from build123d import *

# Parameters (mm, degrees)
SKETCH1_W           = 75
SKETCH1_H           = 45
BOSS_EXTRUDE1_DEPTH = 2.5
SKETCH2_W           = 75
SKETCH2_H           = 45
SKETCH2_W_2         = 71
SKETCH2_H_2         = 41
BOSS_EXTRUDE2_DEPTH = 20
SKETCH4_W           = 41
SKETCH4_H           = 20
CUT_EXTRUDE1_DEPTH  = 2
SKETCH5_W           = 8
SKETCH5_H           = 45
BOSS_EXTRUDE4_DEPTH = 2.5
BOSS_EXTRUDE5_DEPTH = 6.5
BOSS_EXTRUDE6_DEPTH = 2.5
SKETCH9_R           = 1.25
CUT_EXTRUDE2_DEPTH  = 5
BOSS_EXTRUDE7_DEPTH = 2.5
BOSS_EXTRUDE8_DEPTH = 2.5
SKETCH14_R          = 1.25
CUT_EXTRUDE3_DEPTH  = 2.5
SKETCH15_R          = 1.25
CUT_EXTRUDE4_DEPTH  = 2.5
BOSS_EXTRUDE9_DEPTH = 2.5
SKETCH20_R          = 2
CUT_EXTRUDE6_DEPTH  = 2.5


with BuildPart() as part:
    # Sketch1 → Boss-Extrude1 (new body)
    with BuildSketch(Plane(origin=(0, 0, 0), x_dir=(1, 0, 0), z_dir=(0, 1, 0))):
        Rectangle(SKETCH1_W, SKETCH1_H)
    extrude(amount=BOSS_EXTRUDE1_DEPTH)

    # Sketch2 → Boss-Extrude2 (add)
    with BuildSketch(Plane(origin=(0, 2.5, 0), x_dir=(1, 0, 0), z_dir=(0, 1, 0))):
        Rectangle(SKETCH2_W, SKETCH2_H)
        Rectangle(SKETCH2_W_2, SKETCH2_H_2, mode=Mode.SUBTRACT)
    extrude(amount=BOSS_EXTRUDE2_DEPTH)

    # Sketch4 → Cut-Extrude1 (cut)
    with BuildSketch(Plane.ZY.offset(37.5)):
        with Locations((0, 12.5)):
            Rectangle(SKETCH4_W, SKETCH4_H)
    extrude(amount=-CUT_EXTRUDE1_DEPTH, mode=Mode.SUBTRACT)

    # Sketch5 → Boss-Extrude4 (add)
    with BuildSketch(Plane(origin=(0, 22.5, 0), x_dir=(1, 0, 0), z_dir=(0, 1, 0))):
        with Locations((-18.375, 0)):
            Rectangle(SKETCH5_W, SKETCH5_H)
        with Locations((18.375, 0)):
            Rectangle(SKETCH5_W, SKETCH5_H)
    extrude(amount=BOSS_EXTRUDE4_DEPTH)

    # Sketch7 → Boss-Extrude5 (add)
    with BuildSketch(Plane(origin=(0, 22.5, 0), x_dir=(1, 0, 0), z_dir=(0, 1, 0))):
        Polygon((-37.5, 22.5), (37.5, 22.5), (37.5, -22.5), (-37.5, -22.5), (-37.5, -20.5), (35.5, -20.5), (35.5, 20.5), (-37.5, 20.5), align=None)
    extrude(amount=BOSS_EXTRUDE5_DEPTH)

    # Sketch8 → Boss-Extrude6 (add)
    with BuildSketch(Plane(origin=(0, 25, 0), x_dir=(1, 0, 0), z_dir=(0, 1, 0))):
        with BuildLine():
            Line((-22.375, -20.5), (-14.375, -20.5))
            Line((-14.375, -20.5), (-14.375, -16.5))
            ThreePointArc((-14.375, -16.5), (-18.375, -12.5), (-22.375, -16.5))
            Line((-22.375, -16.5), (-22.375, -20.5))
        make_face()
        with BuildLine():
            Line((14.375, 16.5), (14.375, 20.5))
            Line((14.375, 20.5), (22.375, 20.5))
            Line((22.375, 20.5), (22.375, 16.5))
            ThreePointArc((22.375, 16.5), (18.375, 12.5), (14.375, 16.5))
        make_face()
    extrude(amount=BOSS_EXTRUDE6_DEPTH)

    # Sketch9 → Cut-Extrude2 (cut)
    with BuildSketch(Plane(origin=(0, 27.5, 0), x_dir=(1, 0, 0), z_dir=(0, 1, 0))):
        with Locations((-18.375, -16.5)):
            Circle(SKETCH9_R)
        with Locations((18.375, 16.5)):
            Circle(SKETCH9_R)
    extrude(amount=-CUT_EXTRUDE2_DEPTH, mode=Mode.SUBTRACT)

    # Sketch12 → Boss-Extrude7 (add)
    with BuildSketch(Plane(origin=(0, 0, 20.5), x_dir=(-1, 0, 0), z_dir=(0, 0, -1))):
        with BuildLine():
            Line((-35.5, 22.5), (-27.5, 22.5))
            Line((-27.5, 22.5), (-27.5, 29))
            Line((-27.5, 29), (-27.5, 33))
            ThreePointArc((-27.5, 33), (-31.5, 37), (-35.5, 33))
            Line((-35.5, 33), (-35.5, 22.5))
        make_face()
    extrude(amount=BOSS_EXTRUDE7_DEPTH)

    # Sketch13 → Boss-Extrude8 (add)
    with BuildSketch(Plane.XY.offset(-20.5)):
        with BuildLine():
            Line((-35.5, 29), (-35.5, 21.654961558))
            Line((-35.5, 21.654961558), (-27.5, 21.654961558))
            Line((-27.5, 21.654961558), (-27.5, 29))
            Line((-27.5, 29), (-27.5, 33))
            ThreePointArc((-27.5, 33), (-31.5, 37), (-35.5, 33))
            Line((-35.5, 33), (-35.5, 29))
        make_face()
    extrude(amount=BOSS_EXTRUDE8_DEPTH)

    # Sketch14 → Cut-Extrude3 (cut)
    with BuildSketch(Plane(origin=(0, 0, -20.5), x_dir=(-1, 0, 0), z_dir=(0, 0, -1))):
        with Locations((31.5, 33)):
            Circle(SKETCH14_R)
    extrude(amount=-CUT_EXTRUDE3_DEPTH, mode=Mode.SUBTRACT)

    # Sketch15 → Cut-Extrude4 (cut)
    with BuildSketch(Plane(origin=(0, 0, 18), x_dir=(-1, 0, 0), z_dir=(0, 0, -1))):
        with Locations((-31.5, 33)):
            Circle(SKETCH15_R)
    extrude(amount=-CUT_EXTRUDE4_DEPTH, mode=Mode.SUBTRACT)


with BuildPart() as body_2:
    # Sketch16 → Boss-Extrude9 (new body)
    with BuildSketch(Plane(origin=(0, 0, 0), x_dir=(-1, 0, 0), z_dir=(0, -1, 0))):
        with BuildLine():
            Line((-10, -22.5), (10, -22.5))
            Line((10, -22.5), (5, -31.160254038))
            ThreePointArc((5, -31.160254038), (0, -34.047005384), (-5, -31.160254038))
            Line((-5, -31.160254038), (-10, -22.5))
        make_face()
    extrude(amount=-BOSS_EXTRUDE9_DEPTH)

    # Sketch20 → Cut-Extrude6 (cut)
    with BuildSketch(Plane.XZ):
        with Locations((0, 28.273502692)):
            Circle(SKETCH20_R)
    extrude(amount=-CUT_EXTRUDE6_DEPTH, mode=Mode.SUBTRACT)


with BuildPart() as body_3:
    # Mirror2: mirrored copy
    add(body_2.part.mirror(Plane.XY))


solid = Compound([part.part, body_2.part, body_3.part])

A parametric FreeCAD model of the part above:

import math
import FreeCAD as App
import Part
import Sketcher

V = App.Vector
Q = App.Units.Quantity

doc = App.newDocument("Part")
body = doc.addObject("PartDesign::Body", "Body")

# Sketch on XZ plane
sketch1 = body.newObject("Sketcher::SketchObject", "Sketch")
sketch1.AttachmentSupport = (doc.getObject("XZ_Plane"), [""])
sketch1.MapMode = "FlatFace"
sketch1.addGeometry(Part.LineSegment(V(-38, -22, 0), V(-38, 22, 0)), False)
sketch1.addGeometry(Part.LineSegment(V(-38, 22, 0), V(38, 22, 0)), False)
sketch1.addGeometry(Part.LineSegment(V(38, 22, 0), V(38, -22, 0)), False)
sketch1.addGeometry(Part.LineSegment(V(38, -22, 0), V(-38, -22, 0)), False)
sketch1.addConstraint(Sketcher.Constraint("Coincident", 0, 2, 1, 1))
sketch1.addConstraint(Sketcher.Constraint("Coincident", 1, 2, 2, 1))
sketch1.addConstraint(Sketcher.Constraint("Coincident", 2, 2, 3, 1))
sketch1.addConstraint(Sketcher.Constraint("Coincident", 3, 2, 0, 1))
sketch1.addConstraint(Sketcher.Constraint("Vertical", 0))
sketch1.addConstraint(Sketcher.Constraint("Horizontal", 1))
sketch1.addConstraint(Sketcher.Constraint("Vertical", 2))
sketch1.addConstraint(Sketcher.Constraint("Horizontal", 3))
sketch1.addConstraint(Sketcher.Constraint("Symmetric", 0, 2, 2, 2, -1, 1))
sketch1.addConstraint(Sketcher.Constraint("DistanceX", 1, 1, 1, 2, 75.0))
sketch1.addConstraint(Sketcher.Constraint("DistanceY", 0, 1, 0, 2, 45.0))
pad1 = body.newObject("PartDesign::Pad", "Pad")
pad1.Profile = sketch1
pad1.Length = 2.5
pad1.Reversed = True

# Sketch on XZ plane
sketch2 = body.newObject("Sketcher::SketchObject", "Sketch001")
sketch2.AttachmentSupport = (doc.getObject("XZ_Plane"), [""])
sketch2.MapMode = "FlatFace"
sketch2.AttachmentOffset = App.Placement(V(0, 0, -2.5), App.Rotation())
sketch2.addGeometry(Part.LineSegment(V(-38, -22, 0), V(-38, 22, 0)), False)
sketch2.addGeometry(Part.LineSegment(V(-38, 22, 0), V(38, 22, 0)), False)
sketch2.addGeometry(Part.LineSegment(V(38, 22, 0), V(38, -22, 0)), False)
sketch2.addGeometry(Part.LineSegment(V(38, -22, 0), V(-38, -22, 0)), False)
sketch2.addGeometry(Part.LineSegment(V(36, 20, 0), V(-36, 20, 0)), False)
sketch2.addGeometry(Part.LineSegment(V(-36, 20, 0), V(-36, -20, 0)), False)
sketch2.addGeometry(Part.LineSegment(V(-36, -20, 0), V(36, -20, 0)), False)
sketch2.addGeometry(Part.LineSegment(V(36, -20, 0), V(36, 20, 0)), False)
sketch2.addConstraint(Sketcher.Constraint("Coincident", 0, 2, 1, 1))
sketch2.addConstraint(Sketcher.Constraint("Coincident", 1, 2, 2, 1))
sketch2.addConstraint(Sketcher.Constraint("Coincident", 2, 2, 3, 1))
sketch2.addConstraint(Sketcher.Constraint("Coincident", 3, 2, 0, 1))
sketch2.addConstraint(Sketcher.Constraint("Coincident", 4, 2, 5, 1))
sketch2.addConstraint(Sketcher.Constraint("Coincident", 5, 2, 6, 1))
sketch2.addConstraint(Sketcher.Constraint("Coincident", 6, 2, 7, 1))
sketch2.addConstraint(Sketcher.Constraint("Coincident", 7, 2, 4, 1))
sketch2.addConstraint(Sketcher.Constraint("Vertical", 0))
sketch2.addConstraint(Sketcher.Constraint("Horizontal", 1))
sketch2.addConstraint(Sketcher.Constraint("Vertical", 2))
sketch2.addConstraint(Sketcher.Constraint("Horizontal", 3))
sketch2.addConstraint(Sketcher.Constraint("Horizontal", 4))
sketch2.addConstraint(Sketcher.Constraint("Vertical", 5))
sketch2.addConstraint(Sketcher.Constraint("Horizontal", 6))
sketch2.addConstraint(Sketcher.Constraint("Vertical", 7))
sketch2.addConstraint(Sketcher.Constraint("Symmetric", 0, 2, 2, 2, -1, 1))
sketch2.addConstraint(Sketcher.Constraint("Symmetric", 4, 2, 6, 2, -1, 1))
sketch2.addConstraint(Sketcher.Constraint("DistanceX", 1, 1, 1, 2, 75.0))
sketch2.addConstraint(Sketcher.Constraint("DistanceX", 4, 2, 4, 1, 71.0))
sketch2.addConstraint(Sketcher.Constraint("DistanceY", 0, 1, 0, 2, 45.0))
sketch2.addConstraint(Sketcher.Constraint("DistanceY", 5, 2, 5, 1, 41.0))
pad2 = body.newObject("PartDesign::Pad", "Pad001")
pad2.Profile = sketch2
pad2.Length = 20
pad2.Reversed = True

# Sketch on YZ plane
sketch3 = body.newObject("Sketcher::SketchObject", "Sketch002")
sketch3.AttachmentSupport = (doc.getObject("YZ_Plane"), [""])
sketch3.MapMode = "FlatFace"
sketch3.AttachmentOffset = App.Placement(V(0, 0, -37.5), App.Rotation())
sketch3.addGeometry(Part.LineSegment(V(22, -20, 0), V(2, -20, 0)), False)
sketch3.addGeometry(Part.LineSegment(V(2, -20, 0), V(2, 20, 0)), False)
sketch3.addGeometry(Part.LineSegment(V(2, 20, 0), V(22, 20, 0)), False)
sketch3.addGeometry(Part.LineSegment(V(22, 20, 0), V(22, -20, 0)), False)
sketch3.addConstraint(Sketcher.Constraint("Coincident", 0, 2, 1, 1))
sketch3.addConstraint(Sketcher.Constraint("Coincident", 1, 2, 2, 1))
sketch3.addConstraint(Sketcher.Constraint("Coincident", 2, 2, 3, 1))
sketch3.addConstraint(Sketcher.Constraint("Coincident", 3, 2, 0, 1))
sketch3.addConstraint(Sketcher.Constraint("Horizontal", 0))
sketch3.addConstraint(Sketcher.Constraint("Vertical", 1))
sketch3.addConstraint(Sketcher.Constraint("Horizontal", 2))
sketch3.addConstraint(Sketcher.Constraint("Vertical", 3))
sketch3.addConstraint(Sketcher.Constraint("DistanceX", 0, 2, 0, 1, 20.0))
sketch3.addConstraint(Sketcher.Constraint("DistanceY", 1, 1, 1, 2, 41.0))
sketch3.addConstraint(Sketcher.Constraint("DistanceX", -1, 1, 0, 2, 2.5))
sketch3.addConstraint(Sketcher.Constraint("DistanceY", 0, 2, -1, 1, 20.5))
pocket1 = body.newObject("PartDesign::Pocket", "Pocket")
pocket1.Profile = sketch3
pocket1.Length = 2
pocket1.Reversed = True

# Sketch on XZ plane
sketch4 = body.newObject("Sketcher::SketchObject", "Sketch003")
sketch4.AttachmentSupport = (doc.getObject("XZ_Plane"), [""])
sketch4.MapMode = "FlatFace"
sketch4.AttachmentOffset = App.Placement(V(0, 0, -22.5), App.Rotation())
sketch4.addGeometry(Part.LineSegment(V(-22, -22, 0), V(-22, 22, 0)), False)
sketch4.addGeometry(Part.LineSegment(V(-22, 22, 0), V(-14, 22, 0)), False)
sketch4.addGeometry(Part.LineSegment(V(-14, 22, 0), V(-14, -22, 0)), False)
sketch4.addGeometry(Part.LineSegment(V(-14, -22, 0), V(-22, -22, 0)), False)
sketch4.addGeometry(Part.LineSegment(V(14, -22, 0), V(14, 22, 0)), False)
sketch4.addGeometry(Part.LineSegment(V(14, 22, 0), V(22, 22, 0)), False)
sketch4.addGeometry(Part.LineSegment(V(22, 22, 0), V(22, -22, 0)), False)
sketch4.addGeometry(Part.LineSegment(V(22, -22, 0), V(14, -22, 0)), False)
sketch4.addConstraint(Sketcher.Constraint("Coincident", 0, 2, 1, 1))
sketch4.addConstraint(Sketcher.Constraint("Coincident", 1, 2, 2, 1))
sketch4.addConstraint(Sketcher.Constraint("Coincident", 2, 2, 3, 1))
sketch4.addConstraint(Sketcher.Constraint("Coincident", 3, 2, 0, 1))
sketch4.addConstraint(Sketcher.Constraint("Coincident", 4, 2, 5, 1))
sketch4.addConstraint(Sketcher.Constraint("Coincident", 5, 2, 6, 1))
sketch4.addConstraint(Sketcher.Constraint("Coincident", 6, 2, 7, 1))
sketch4.addConstraint(Sketcher.Constraint("Coincident", 7, 2, 4, 1))
sketch4.addConstraint(Sketcher.Constraint("Vertical", 0))
sketch4.addConstraint(Sketcher.Constraint("Horizontal", 1))
sketch4.addConstraint(Sketcher.Constraint("Vertical", 2))
sketch4.addConstraint(Sketcher.Constraint("Horizontal", 3))
sketch4.addConstraint(Sketcher.Constraint("Vertical", 4))
sketch4.addConstraint(Sketcher.Constraint("Horizontal", 5))
sketch4.addConstraint(Sketcher.Constraint("Vertical", 6))
sketch4.addConstraint(Sketcher.Constraint("Horizontal", 7))
sketch4.addConstraint(Sketcher.Constraint("Symmetric", 2, 2, 4, 2, -1, 1))
sketch4.addConstraint(Sketcher.Constraint("Symmetric", 0, 2, 6, 2, -1, 1))
sketch4.addConstraint(Sketcher.Constraint("Horizontal", 1, 2, 4, 2))
sketch4.addConstraint(Sketcher.Constraint("DistanceX", 1, 1, 1, 2, 8.0))
sketch4.addConstraint(Sketcher.Constraint("DistanceY", 0, 1, 0, 2, 45.0))
sketch4.addConstraint(Sketcher.Constraint("DistanceX", 1, 2, 4, 2, 28.75))
pad3 = body.newObject("PartDesign::Pad", "Pad002")
pad3.Profile = sketch4
pad3.Length = 2.5
pad3.Reversed = True

# Sketch on XZ plane
sketch5 = body.newObject("Sketcher::SketchObject", "Sketch004")
sketch5.AttachmentSupport = (doc.getObject("XZ_Plane"), [""])
sketch5.MapMode = "FlatFace"
sketch5.AttachmentOffset = App.Placement(V(0, 0, -22.5), App.Rotation())
sketch5.addGeometry(Part.LineSegment(V(37.5, -22.5, 0), V(-37.5, -22.5, 0)), False)
sketch5.addGeometry(Part.LineSegment(V(-37.5, -22.5, 0), V(-37.5, -20.5, 0)), False)
sketch5.addGeometry(Part.LineSegment(V(-37.5, -20.5, 0), V(35.5, -20.5, 0)), False)
sketch5.addGeometry(Part.LineSegment(V(35.5, -20.5, 0), V(35.5, 20.5, 0)), False)
sketch5.addGeometry(Part.LineSegment(V(35.5, 20.5, 0), V(-37.5, 20.5, 0)), False)
sketch5.addGeometry(Part.LineSegment(V(-37.5, 20.5, 0), V(-37.5, 22.5, 0)), False)
sketch5.addGeometry(Part.LineSegment(V(-37.5, 22.5, 0), V(37.5, 22.5, 0)), False)
sketch5.addGeometry(Part.LineSegment(V(37.5, 22.5, 0), V(37.5, -22.5, 0)), False)
sketch5.addConstraint(Sketcher.Constraint("Coincident", 0, 2, 1, 1))
sketch5.addConstraint(Sketcher.Constraint("Coincident", 1, 2, 2, 1))
sketch5.addConstraint(Sketcher.Constraint("Coincident", 2, 2, 3, 1))
sketch5.addConstraint(Sketcher.Constraint("Coincident", 3, 2, 4, 1))
sketch5.addConstraint(Sketcher.Constraint("Coincident", 4, 2, 5, 1))
sketch5.addConstraint(Sketcher.Constraint("Coincident", 5, 2, 6, 1))
sketch5.addConstraint(Sketcher.Constraint("Coincident", 6, 2, 7, 1))
sketch5.addConstraint(Sketcher.Constraint("Coincident", 7, 2, 0, 1))
sketch5.addConstraint(Sketcher.Constraint("Horizontal", 0))
sketch5.addConstraint(Sketcher.Constraint("Vertical", 1))
sketch5.addConstraint(Sketcher.Constraint("Horizontal", 2))
sketch5.addConstraint(Sketcher.Constraint("Vertical", 3))
sketch5.addConstraint(Sketcher.Constraint("Horizontal", 4))
sketch5.addConstraint(Sketcher.Constraint("Vertical", 5))
sketch5.addConstraint(Sketcher.Constraint("Horizontal", 6))
sketch5.addConstraint(Sketcher.Constraint("Vertical", 7))
sketch5.addConstraint(Sketcher.Constraint("Symmetric", 0, 2, 6, 2, -1, 1))
sketch5.addConstraint(Sketcher.Constraint("Symmetric", 1, 2, 4, 2, -1))
sketch5.addConstraint(Sketcher.Constraint("DistanceX", 0, 2, 0, 1, 75.0))
sketch5.addConstraint(Sketcher.Constraint("DistanceX", 2, 1, 2, 2, 73.0))
sketch5.addConstraint(Sketcher.Constraint("DistanceY", 1, 1, 1, 2, 2.0))
sketch5.addConstraint(Sketcher.Constraint("DistanceY", 3, 1, 3, 2, 41.0))
pad4 = body.newObject("PartDesign::Pad", "Pad003")
pad4.Profile = sketch5
pad4.Length = 6.5
pad4.Reversed = True

# Sketch on XZ plane
sketch6 = body.newObject("Sketcher::SketchObject", "Sketch005")
sketch6.AttachmentSupport = (doc.getObject("XZ_Plane"), [""])
sketch6.MapMode = "FlatFace"
sketch6.AttachmentOffset = App.Placement(V(0, 0, -25), App.Rotation())
sketch6.addGeometry(Part.LineSegment(V(-22.4, 20.5, 0), V(-14.4, 20.5, 0)), False)
sketch6.addGeometry(Part.LineSegment(V(-14.4, 20.5, 0), V(-14.4, 16.5, 0)), False)
sketch6.addGeometry(Part.ArcOfCircle(Part.Circle(V(-18.4, 16.5, 0), V(0, 0, 1), 4), math.radians(180), math.radians(360)), False)
sketch6.addGeometry(Part.LineSegment(V(-22.4, 16.5, 0), V(-22.4, 20.5, 0)), False)
sketch6.addGeometry(Part.LineSegment(V(14.4, -20.5, 0), V(14.4, -16.5, 0)), False)
sketch6.addGeometry(Part.ArcOfCircle(Part.Circle(V(18.4, -16.5, 0), V(0, 0, 1), 4), math.radians(0), math.radians(180)), False)
sketch6.addGeometry(Part.LineSegment(V(22.4, -16.5, 0), V(22.4, -20.5, 0)), False)
sketch6.addGeometry(Part.LineSegment(V(22.4, -20.5, 0), V(14.4, -20.5, 0)), False)
sketch6.addConstraint(Sketcher.Constraint("Coincident", 0, 2, 1, 1))
sketch6.addConstraint(Sketcher.Constraint("Tangent", 1, 2, 2, 2))
sketch6.addConstraint(Sketcher.Constraint("Tangent", 2, 1, 3, 1))
sketch6.addConstraint(Sketcher.Constraint("Coincident", 3, 2, 0, 1))
sketch6.addConstraint(Sketcher.Constraint("Tangent", 4, 2, 5, 2))
sketch6.addConstraint(Sketcher.Constraint("Tangent", 5, 1, 6, 1))
sketch6.addConstraint(Sketcher.Constraint("Coincident", 6, 2, 7, 1))
sketch6.addConstraint(Sketcher.Constraint("Coincident", 7, 2, 4, 1))
sketch6.addConstraint(Sketcher.Constraint("Horizontal", 0))
sketch6.addConstraint(Sketcher.Constraint("Vertical", 1))
sketch6.addConstraint(Sketcher.Constraint("Vertical", 3))
sketch6.addConstraint(Sketcher.Constraint("Vertical", 4))
sketch6.addConstraint(Sketcher.Constraint("Vertical", 6))
sketch6.addConstraint(Sketcher.Constraint("Horizontal", 7))
sketch6.addConstraint(Sketcher.Constraint("Equal", 2, 5))
sketch6.addConstraint(Sketcher.Constraint("Symmetric", 2, 3, 5, 3, -1, 1))
sketch6.addConstraint(Sketcher.Constraint("Equal", 3, 4))
sketch6.addConstraint(Sketcher.Constraint("Radius", 2, 4.0))
sketch6.addConstraint(Sketcher.Constraint("DistanceY", 1, 2, 1, 1, 4.0))
sketch6.addConstraint(Sketcher.Constraint("DistanceY", 5, 3, 2, 3, 33.0))
sketch6.addConstraint(Sketcher.Constraint("DistanceX", 2, 3, 5, 3, 36.75))
pad5 = body.newObject("PartDesign::Pad", "Pad004")
pad5.Profile = sketch6
pad5.Length = 2.5
pad5.Reversed = True

# Sketch on XZ plane
sketch7 = body.newObject("Sketcher::SketchObject", "Sketch006")
sketch7.AttachmentSupport = (doc.getObject("XZ_Plane"), [""])
sketch7.MapMode = "FlatFace"
sketch7.AttachmentOffset = App.Placement(V(0, 0, -27.5), App.Rotation())
sketch7.addGeometry(Part.Circle(V(-18.4, 16.5, 0), V(0, 0, 1), 1.2), False)
sketch7.addGeometry(Part.Circle(V(18.4, -16.5, 0), V(0, 0, 1), 1.2), False)
sketch7.addConstraint(Sketcher.Constraint("Equal", 0, 1))
sketch7.addConstraint(Sketcher.Constraint("Symmetric", 0, 3, 1, 3, -1, 1))
sketch7.addConstraint(Sketcher.Constraint("Diameter", 0, 2.5))
sketch7.addConstraint(Sketcher.Constraint("DistanceY", 1, 3, 0, 3, 33.0))
sketch7.addConstraint(Sketcher.Constraint("DistanceX", 0, 3, 1, 3, 36.75))
pocket2 = body.newObject("PartDesign::Pocket", "Pocket001")
pocket2.Profile = sketch7
pocket2.Length = 5
pocket2.Reversed = True

# Sketch on XY plane
sketch8 = body.newObject("Sketcher::SketchObject", "Sketch007")
sketch8.AttachmentSupport = (doc.getObject("XY_Plane"), [""])
sketch8.MapMode = "FlatFace"
sketch8.AttachmentOffset = App.Placement(V(0, 0, 20.5), App.Rotation())
sketch8.addGeometry(Part.LineSegment(V(35.5, 22.5, 0), V(27.5, 22.5, 0)), False)
sketch8.addGeometry(Part.LineSegment(V(27.5, 22.5, 0), V(27.5, 33, 0)), False)
sketch8.addGeometry(Part.ArcOfCircle(Part.Circle(V(31.5, 33, 0), V(0, 0, 1), 4), math.radians(0), math.radians(180)), False)
sketch8.addGeometry(Part.LineSegment(V(35.5, 33, 0), V(35.5, 22.5, 0)), False)
sketch8.addConstraint(Sketcher.Constraint("Coincident", 0, 2, 1, 1))
sketch8.addConstraint(Sketcher.Constraint("Tangent", 1, 2, 2, 2))
sketch8.addConstraint(Sketcher.Constraint("Tangent", 2, 1, 3, 1))
sketch8.addConstraint(Sketcher.Constraint("Coincident", 3, 2, 0, 1))
sketch8.addConstraint(Sketcher.Constraint("Horizontal", 0))
sketch8.addConstraint(Sketcher.Constraint("Vertical", 1))
sketch8.addConstraint(Sketcher.Constraint("Vertical", 3))
sketch8.addConstraint(Sketcher.Constraint("Radius", 2, 4.0))
sketch8.addConstraint(Sketcher.Constraint("DistanceY", 1, 1, 1, 2, 10.5))
sketch8.addConstraint(Sketcher.Constraint("DistanceY", -1, 1, 2, 3, 33.0))
sketch8.addConstraint(Sketcher.Constraint("DistanceX", -1, 1, 2, 3, 31.5))
pad6 = body.newObject("PartDesign::Pad", "Pad005")
pad6.Profile = sketch8
pad6.Length = 2.5
pad6.Reversed = True

# Sketch on XY plane
sketch9 = body.newObject("Sketcher::SketchObject", "Sketch008")
sketch9.AttachmentSupport = (doc.getObject("XY_Plane"), [""])
sketch9.MapMode = "FlatFace"
sketch9.AttachmentOffset = App.Placement(V(0, 0, -20.5), App.Rotation())
sketch9.addGeometry(Part.LineSegment(V(-35.5, 21.7, 0), V(-27.5, 21.7, 0)), False)
sketch9.addGeometry(Part.LineSegment(V(-27.5, 21.7, 0), V(-27.5, 33, 0)), False)
sketch9.addGeometry(Part.ArcOfCircle(Part.Circle(V(-31.5, 33, 0), V(0, 0, 1), 4), math.radians(0), math.radians(180)), False)
sketch9.addGeometry(Part.LineSegment(V(-35.5, 33, 0), V(-35.5, 21.7, 0)), False)
sketch9.addConstraint(Sketcher.Constraint("Coincident", 0, 2, 1, 1))
sketch9.addConstraint(Sketcher.Constraint("Tangent", 1, 2, 2, 1))
sketch9.addConstraint(Sketcher.Constraint("Tangent", 2, 2, 3, 1))
sketch9.addConstraint(Sketcher.Constraint("Coincident", 3, 2, 0, 1))
sketch9.addConstraint(Sketcher.Constraint("Horizontal", 0))
sketch9.addConstraint(Sketcher.Constraint("Vertical", 1))
sketch9.addConstraint(Sketcher.Constraint("Vertical", 3))
sketch9.addConstraint(Sketcher.Constraint("Radius", 2, 4.0))
sketch9.addConstraint(Sketcher.Constraint("DistanceY", -1, 1, 2, 3, 33.0))
sketch9.addConstraint(Sketcher.Constraint("DistanceX", 2, 3, -1, 1, 31.5))
sketch9.addConstraint(Sketcher.Constraint("DistanceY", 1, 1, 1, 2, 11.345038))
pad7 = body.newObject("PartDesign::Pad", "Pad006")
pad7.Profile = sketch9
pad7.Length = 2.5

# Sketch on XY plane
sketch10 = body.newObject("Sketcher::SketchObject", "Sketch009")
sketch10.AttachmentSupport = (doc.getObject("XY_Plane"), [""])
sketch10.MapMode = "FlatFace"
sketch10.AttachmentOffset = App.Placement(V(0, 0, -20.5), App.Rotation())
sketch10.addGeometry(Part.Circle(V(-31.5, 33, 0), V(0, 0, 1), 1.2), False)
sketch10.addConstraint(Sketcher.Constraint("Diameter", 0, 2.5))
sketch10.addConstraint(Sketcher.Constraint("DistanceY", -1, 1, 0, 3, 33.0))
sketch10.addConstraint(Sketcher.Constraint("DistanceX", 0, 3, -1, 1, 31.5))
pocket3 = body.newObject("PartDesign::Pocket", "Pocket002")
pocket3.Profile = sketch10
pocket3.Length = 2.5
pocket3.Reversed = True

# Sketch on XY plane
sketch11 = body.newObject("Sketcher::SketchObject", "Sketch010")
sketch11.AttachmentSupport = (doc.getObject("XY_Plane"), [""])
sketch11.MapMode = "FlatFace"
sketch11.AttachmentOffset = App.Placement(V(0, 0, 18), App.Rotation())
sketch11.addGeometry(Part.Circle(V(31.5, 33, 0), V(0, 0, 1), 1.2), False)
sketch11.addConstraint(Sketcher.Constraint("Diameter", 0, 2.5))
sketch11.addConstraint(Sketcher.Constraint("DistanceY", -1, 1, 0, 3, 33.0))
sketch11.addConstraint(Sketcher.Constraint("DistanceX", -1, 1, 0, 3, 31.5))
pocket4 = body.newObject("PartDesign::Pocket", "Pocket003")
pocket4.Profile = sketch11
pocket4.Length = 2.5
pocket4.Reversed = True
body2 = doc.addObject("PartDesign::Body", "Body001")

# Sketch on XZ plane
sketch12 = body2.newObject("Sketcher::SketchObject", "Sketch011")
sketch12.AttachmentSupport = (doc.getObject("XZ_Plane001"), [""])
sketch12.MapMode = "FlatFace"
sketch12.addGeometry(Part.LineSegment(V(-10, 22, 0), V(10, 22, 0)), False)
sketch12.addGeometry(Part.LineSegment(V(10, 22, 0), V(5, 31, 0)), False)
sketch12.addGeometry(Part.ArcOfCircle(Part.Circle(V(0, 28, 0), V(0, 0, 1), 6), math.radians(30), math.radians(150)), False)
sketch12.addGeometry(Part.LineSegment(V(-5, 31, 0), V(-10, 22, 0)), False)
sketch12.addConstraint(Sketcher.Constraint("Coincident", 0, 2, 1, 1))
sketch12.addConstraint(Sketcher.Constraint("Tangent", 1, 2, 2, 1))
sketch12.addConstraint(Sketcher.Constraint("Tangent", 2, 2, 3, 1))
sketch12.addConstraint(Sketcher.Constraint("Coincident", 3, 2, 0, 1))
sketch12.addConstraint(Sketcher.Constraint("Horizontal", 0))
sketch12.addConstraint(Sketcher.Constraint("Symmetric", 1, 2, 2, 2, -2))
sketch12.addConstraint(Sketcher.Constraint("DistanceX", 0, 1, 0, 2, 20.0))
sketch12.addConstraint(Sketcher.Constraint("Angle", 1, Q("120 deg")))
sketch12.addConstraint(Sketcher.Constraint("Distance", 1, 10.0))
sketch12.addConstraint(Sketcher.Constraint("DistanceY", -1, 1, 0, 2, 22.5))
pad8 = body2.newObject("PartDesign::Pad", "Pad007")
pad8.Profile = sketch12
pad8.Length = 2.5
pad8.Reversed = True

# Sketch on XZ plane
sketch13 = body2.newObject("Sketcher::SketchObject", "Sketch012")
sketch13.AttachmentSupport = (doc.getObject("XZ_Plane001"), [""])
sketch13.MapMode = "FlatFace"
sketch13.addGeometry(Part.Circle(V(0, 28.3, 0), V(0, 0, 1), 2), False)
sketch13.addConstraint(Sketcher.Constraint("PointOnObject", 0, 3, -2))
sketch13.addConstraint(Sketcher.Constraint("Diameter", 0, 4.0))
sketch13.addConstraint(Sketcher.Constraint("DistanceY", -1, 1, 0, 3, 28.273503))
pocket5 = body2.newObject("PartDesign::Pocket", "Pocket004")
pocket5.Profile = sketch13
pocket5.Length = 2.5
body3 = doc.addObject("PartDesign::Body", "Body002")
doc.recompute()

mirroring = doc.addObject("Part::Mirroring", "Mirroring")
mirroring.Source = body2
mirroring.Base = V(0, 0, 0)
mirroring.Normal = V(0, 0, 1)
body3.BaseFeature = mirroring
doc.recompute()
mirroring.Visibility = False

doc.recompute()
